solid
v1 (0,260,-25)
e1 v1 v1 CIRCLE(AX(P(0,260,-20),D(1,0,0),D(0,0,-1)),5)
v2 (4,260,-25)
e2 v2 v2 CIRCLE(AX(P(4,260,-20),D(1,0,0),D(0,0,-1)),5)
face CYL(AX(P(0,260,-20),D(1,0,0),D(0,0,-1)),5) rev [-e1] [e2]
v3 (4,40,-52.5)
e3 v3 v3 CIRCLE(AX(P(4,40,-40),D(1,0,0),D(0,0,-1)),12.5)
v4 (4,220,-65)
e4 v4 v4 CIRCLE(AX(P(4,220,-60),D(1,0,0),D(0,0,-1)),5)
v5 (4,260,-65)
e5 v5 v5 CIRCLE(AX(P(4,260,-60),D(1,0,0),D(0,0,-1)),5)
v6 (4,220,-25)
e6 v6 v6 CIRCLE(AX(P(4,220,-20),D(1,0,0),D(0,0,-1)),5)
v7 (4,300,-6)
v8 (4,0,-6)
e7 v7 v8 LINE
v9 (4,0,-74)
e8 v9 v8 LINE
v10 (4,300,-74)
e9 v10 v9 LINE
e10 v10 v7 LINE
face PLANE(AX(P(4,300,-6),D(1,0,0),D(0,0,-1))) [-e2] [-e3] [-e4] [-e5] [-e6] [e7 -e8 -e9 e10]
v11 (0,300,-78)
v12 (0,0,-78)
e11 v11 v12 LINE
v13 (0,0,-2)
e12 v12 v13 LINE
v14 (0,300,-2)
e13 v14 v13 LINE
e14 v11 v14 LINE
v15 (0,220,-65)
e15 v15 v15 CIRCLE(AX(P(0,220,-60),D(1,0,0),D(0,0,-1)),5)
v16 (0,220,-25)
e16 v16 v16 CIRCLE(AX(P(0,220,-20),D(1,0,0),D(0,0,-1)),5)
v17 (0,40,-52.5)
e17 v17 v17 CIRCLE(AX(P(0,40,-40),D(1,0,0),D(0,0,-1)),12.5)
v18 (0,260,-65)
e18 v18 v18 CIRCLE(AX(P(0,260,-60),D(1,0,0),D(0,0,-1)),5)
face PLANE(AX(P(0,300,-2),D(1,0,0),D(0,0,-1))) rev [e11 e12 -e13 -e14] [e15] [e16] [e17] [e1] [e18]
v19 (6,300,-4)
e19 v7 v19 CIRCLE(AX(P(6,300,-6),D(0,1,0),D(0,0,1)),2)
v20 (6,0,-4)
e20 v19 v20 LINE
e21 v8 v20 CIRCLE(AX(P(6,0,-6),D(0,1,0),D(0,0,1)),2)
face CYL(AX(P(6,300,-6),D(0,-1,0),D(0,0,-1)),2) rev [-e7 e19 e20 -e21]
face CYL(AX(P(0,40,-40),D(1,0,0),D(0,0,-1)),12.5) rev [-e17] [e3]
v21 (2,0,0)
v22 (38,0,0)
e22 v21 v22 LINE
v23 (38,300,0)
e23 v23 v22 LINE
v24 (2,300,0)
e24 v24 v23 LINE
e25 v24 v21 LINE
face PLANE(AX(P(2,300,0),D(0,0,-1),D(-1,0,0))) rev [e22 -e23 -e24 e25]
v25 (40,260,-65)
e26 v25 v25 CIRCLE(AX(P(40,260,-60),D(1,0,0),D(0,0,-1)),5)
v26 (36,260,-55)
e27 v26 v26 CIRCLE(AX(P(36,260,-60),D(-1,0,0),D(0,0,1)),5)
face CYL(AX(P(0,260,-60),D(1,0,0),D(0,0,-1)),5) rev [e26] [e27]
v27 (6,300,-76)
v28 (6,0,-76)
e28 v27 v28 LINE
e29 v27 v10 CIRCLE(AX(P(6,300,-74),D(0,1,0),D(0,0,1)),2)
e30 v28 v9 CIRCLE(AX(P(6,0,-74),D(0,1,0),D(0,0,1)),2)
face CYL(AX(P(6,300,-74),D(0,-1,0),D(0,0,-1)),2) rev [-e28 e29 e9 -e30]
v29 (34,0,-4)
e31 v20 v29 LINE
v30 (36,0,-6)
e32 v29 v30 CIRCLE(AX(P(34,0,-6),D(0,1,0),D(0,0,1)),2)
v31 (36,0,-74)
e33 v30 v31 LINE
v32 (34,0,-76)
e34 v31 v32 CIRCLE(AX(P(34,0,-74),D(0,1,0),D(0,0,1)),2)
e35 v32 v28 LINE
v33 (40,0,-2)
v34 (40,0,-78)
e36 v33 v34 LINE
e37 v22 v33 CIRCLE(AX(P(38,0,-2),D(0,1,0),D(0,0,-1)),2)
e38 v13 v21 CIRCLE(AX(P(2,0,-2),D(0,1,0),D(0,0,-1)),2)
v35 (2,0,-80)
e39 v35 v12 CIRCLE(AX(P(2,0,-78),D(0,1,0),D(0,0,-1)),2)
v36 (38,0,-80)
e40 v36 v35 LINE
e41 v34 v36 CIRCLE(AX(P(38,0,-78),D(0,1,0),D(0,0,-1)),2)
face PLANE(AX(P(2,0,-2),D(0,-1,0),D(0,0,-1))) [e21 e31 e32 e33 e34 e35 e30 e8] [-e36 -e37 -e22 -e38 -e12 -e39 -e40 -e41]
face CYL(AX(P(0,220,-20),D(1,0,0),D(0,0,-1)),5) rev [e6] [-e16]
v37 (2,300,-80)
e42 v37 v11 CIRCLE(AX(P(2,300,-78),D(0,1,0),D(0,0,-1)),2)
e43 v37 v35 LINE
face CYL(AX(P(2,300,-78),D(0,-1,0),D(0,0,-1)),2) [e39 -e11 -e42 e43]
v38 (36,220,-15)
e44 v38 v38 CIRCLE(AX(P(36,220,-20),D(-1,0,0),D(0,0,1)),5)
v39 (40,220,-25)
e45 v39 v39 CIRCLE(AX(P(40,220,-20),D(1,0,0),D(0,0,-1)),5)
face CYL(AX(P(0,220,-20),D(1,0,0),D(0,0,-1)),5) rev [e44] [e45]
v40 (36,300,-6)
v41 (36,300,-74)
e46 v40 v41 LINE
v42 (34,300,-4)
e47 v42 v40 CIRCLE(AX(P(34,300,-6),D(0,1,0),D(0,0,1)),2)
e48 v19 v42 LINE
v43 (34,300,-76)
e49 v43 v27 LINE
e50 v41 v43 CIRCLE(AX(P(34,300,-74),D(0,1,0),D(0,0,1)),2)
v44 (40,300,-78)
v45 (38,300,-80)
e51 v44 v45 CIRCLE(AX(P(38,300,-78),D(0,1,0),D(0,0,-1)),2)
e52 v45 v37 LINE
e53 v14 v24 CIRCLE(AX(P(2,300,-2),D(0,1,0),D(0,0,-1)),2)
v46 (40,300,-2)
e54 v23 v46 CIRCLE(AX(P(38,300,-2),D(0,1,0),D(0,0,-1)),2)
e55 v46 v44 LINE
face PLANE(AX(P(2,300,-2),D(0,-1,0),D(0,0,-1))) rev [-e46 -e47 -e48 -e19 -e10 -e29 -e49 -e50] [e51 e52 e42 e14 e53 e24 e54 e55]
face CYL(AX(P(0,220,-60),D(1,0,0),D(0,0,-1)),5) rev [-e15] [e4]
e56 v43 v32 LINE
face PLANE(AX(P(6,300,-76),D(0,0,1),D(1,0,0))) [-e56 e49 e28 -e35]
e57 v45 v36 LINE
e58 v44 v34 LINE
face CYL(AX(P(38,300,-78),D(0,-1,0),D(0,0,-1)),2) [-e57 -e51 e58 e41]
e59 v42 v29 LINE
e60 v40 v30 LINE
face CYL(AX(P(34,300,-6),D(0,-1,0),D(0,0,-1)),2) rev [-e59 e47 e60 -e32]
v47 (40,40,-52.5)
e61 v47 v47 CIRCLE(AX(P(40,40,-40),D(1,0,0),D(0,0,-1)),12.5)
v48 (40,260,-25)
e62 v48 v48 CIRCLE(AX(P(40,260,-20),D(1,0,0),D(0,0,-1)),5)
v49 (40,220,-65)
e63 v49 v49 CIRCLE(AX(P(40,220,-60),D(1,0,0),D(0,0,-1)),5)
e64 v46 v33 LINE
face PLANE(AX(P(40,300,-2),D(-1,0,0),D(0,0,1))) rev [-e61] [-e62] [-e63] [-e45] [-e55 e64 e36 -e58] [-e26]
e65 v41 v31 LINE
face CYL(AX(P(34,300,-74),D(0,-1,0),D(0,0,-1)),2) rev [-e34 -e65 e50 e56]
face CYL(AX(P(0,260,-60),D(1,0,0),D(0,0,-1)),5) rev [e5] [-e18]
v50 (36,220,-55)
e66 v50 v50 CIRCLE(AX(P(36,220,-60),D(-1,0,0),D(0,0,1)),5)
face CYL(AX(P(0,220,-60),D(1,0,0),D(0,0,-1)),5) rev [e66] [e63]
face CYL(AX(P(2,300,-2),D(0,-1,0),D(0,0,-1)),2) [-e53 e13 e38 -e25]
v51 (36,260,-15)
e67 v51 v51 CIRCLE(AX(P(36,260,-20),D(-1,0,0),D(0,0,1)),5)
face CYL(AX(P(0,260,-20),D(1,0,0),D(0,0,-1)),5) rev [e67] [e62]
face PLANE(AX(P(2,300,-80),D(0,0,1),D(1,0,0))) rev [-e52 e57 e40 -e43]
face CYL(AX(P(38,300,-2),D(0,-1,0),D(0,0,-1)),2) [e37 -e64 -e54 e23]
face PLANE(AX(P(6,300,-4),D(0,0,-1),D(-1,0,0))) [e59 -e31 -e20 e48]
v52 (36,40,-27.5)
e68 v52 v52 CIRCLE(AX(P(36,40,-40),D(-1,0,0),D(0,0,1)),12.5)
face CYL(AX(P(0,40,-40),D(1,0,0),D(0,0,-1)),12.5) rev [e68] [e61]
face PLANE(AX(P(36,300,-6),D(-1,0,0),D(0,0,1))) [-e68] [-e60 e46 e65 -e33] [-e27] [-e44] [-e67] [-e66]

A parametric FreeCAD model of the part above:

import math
import FreeCAD as App
import Part
import Sketcher
from FreeCAD import Vector

doc = App.newDocument("Part")
params = doc.addObject("Spreadsheet::Sheet", "Params")
for row, (alias, value) in enumerate([
    ("sketch1_radius", "2 mm"),
    ("sketch1_width", "36 mm"),
    ("sketch1_width2", "28 mm"),
    ("sketch1_height", "76 mm"),
    ("sketch1_height2", "68 mm"),
    ("pad1_length", "300 mm"),
    ("sketch2_diameter", "25 mm"),
    ("sketch3_diameter", "10 mm"),
], start=1):
    params.set(f"A{row}", alias)
    params.set(f"B{row}", "=" + value)
    params.setAlias(f"B{row}", alias)

body = doc.addObject("PartDesign::Body", "Body")

sketch1 = body.newObject("Sketcher::SketchObject", "Sketch")
sketch1.AttachmentSupport = (doc.getObject("XZ_Plane"), [""])
sketch1.MapMode = "FlatFace"
sketch1.addGeometry([
    Part.LineSegment(Vector(2, 0, 0), Vector(38, 0, 0)),
    Part.ArcOfCircle(Part.Circle(Vector(38, -2, 0), Vector(0, 0, 1), 2), math.radians(0), math.radians(90)),
    Part.LineSegment(Vector(40, -2, 0), Vector(40, -78, 0)),
    Part.ArcOfCircle(Part.Circle(Vector(38, -78, 0), Vector(0, 0, 1), 2), math.radians(-90), math.radians(0)),
    Part.LineSegment(Vector(38, -80, 0), Vector(2, -80, 0)),
    Part.ArcOfCircle(Part.Circle(Vector(2, -78, 0), Vector(0, 0, 1), 2), math.radians(-180), math.radians(-90)),
    Part.LineSegment(Vector(0, -78, 0), Vector(0, -2, 0)),
    Part.ArcOfCircle(Part.Circle(Vector(2, -2, 0), Vector(0, 0, 1), 2), math.radians(90), math.radians(180)),
    Part.LineSegment(Vector(34, -4, 0), Vector(6, -4, 0)),
    Part.ArcOfCircle(Part.Circle(Vector(6, -6, 0), Vector(0, 0, 1), 2), math.radians(90), math.radians(180)),
    Part.LineSegment(Vector(4, -6, 0), Vector(4, -74, 0)),
    Part.ArcOfCircle(Part.Circle(Vector(6, -74, 0), Vector(0, 0, 1), 2), math.radians(-180), math.radians(-90)),
    Part.LineSegment(Vector(6, -76, 0), Vector(34, -76, 0)),
    Part.ArcOfCircle(Part.Circle(Vector(34, -74, 0), Vector(0, 0, 1), 2), math.radians(-90), math.radians(0)),
    Part.LineSegment(Vector(36, -74, 0), Vector(36, -6, 0)),
    Part.ArcOfCircle(Part.Circle(Vector(34, -6, 0), Vector(0, 0, 1), 2), math.radians(0), math.radians(90)),
], False)
sketch1.addConstraint([
    Sketcher.Constraint("Tangent", 0, 2, 1, 2),
    Sketcher.Constraint("Tangent", 1, 1, 2, 1),
    Sketcher.Constraint("Tangent", 2, 2, 3, 2),
    Sketcher.Constraint("Tangent", 3, 1, 4, 1),
    Sketcher.Constraint("Tangent", 4, 2, 5, 2),
    Sketcher.Constraint("Tangent", 5, 1, 6, 1),
    Sketcher.Constraint("Tangent", 6, 2, 7, 2),
    Sketcher.Constraint("Tangent", 7, 1, 0, 1),
    Sketcher.Constraint("Tangent", 8, 2, 9, 1),
    Sketcher.Constraint("Tangent", 9, 2, 10, 1),
    Sketcher.Constraint("Tangent", 10, 2, 11, 1),
    Sketcher.Constraint("Tangent", 11, 2, 12, 1),
    Sketcher.Constraint("Tangent", 12, 2, 13, 1),
    Sketcher.Constraint("Tangent", 13, 2, 14, 1),
    Sketcher.Constraint("Tangent", 14, 2, 15, 1),
    Sketcher.Constraint("Tangent", 15, 2, 8, 1),
    Sketcher.Constraint("Horizontal", 0),
    Sketcher.Constraint("Vertical", 2),
    Sketcher.Constraint("Horizontal", 4),
    Sketcher.Constraint("Vertical", 6),
    Sketcher.Constraint("Horizontal", 8),
    Sketcher.Constraint("Vertical", 10),
    Sketcher.Constraint("Horizontal", 12),
    Sketcher.Constraint("Vertical", 14),
    Sketcher.Constraint("Equal", 1, 3),
    Sketcher.Constraint("Equal", 3, 5),
    Sketcher.Constraint("Equal", 5, 7),
    Sketcher.Constraint("Equal", 7, 9),
    Sketcher.Constraint("Equal", 9, 11),
    Sketcher.Constraint("Equal", 11, 13),
    Sketcher.Constraint("Equal", 13, 15),
    Sketcher.Constraint("PointOnObject", 0, 2, -1),
    Sketcher.Constraint("PointOnObject", 5, 1, -2),
    Sketcher.Constraint("Radius", 1, 2.0),
    Sketcher.Constraint("DistanceX", 0, 1, 0, 2, 36.0),
    Sketcher.Constraint("DistanceX", 8, 2, 8, 1, 28.0),
    Sketcher.Constraint("DistanceY", 2, 2, 2, 1, 76.0),
    Sketcher.Constraint("DistanceY", 10, 2, 10, 1, 68.0),
    Sketcher.Constraint("DistanceX", -1, 1, 9, 3, 6.0),
    Sketcher.Constraint("DistanceY", 9, 3, -1, 1, 6.0),
])
sketch1.setExpression("Constraints[33]", "Params.sketch1_radius")
sketch1.setExpression("Constraints[34]", "Params.sketch1_width")
sketch1.setExpression("Constraints[35]", "Params.sketch1_width2")
sketch1.setExpression("Constraints[36]", "Params.sketch1_height")
sketch1.setExpression("Constraints[37]", "Params.sketch1_height2")
pad1 = body.newObject("PartDesign::Pad", "Pad")
pad1.Profile = sketch1
pad1.setExpression("Length", "Params.pad1_length")
pad1.Reversed = True

sketch2 = body.newObject("Sketcher::SketchObject", "Sketch001")
sketch2.AttachmentSupport = (doc.getObject("YZ_Plane"), [""])
sketch2.MapMode = "FlatFace"
sketch2.AttachmentOffset = App.Placement(Vector(0, 0, 40), App.Rotation())
sketch2.addGeometry(Part.Circle(Vector(40, -40, 0), Vector(0, 0, 1), 12), False)
sketch2.addConstraint([
    Sketcher.Constraint("Diameter", 0, 25.0),
    Sketcher.Constraint("DistanceX", -1, 1, 0, 3, 40.0),
    Sketcher.Constraint("DistanceY", 0, 3, -1, 1, 40.0),
])
sketch2.setExpression("Constraints[0]", "Params.sketch2_diameter")
pocket1 = body.newObject("PartDesign::Pocket", "Pocket")
pocket1.Profile = sketch2
pocket1.Type = "ThroughAll"

sketch3 = body.newObject("Sketcher::SketchObject", "Sketch002")
sketch3.AttachmentSupport = (doc.getObject("YZ_Plane"), [""])
sketch3.MapMode = "FlatFace"
sketch3.AttachmentOffset = App.Placement(Vector(0, 0, 40), App.Rotation())
sketch3.addGeometry([
    Part.Circle(Vector(220, -60, 0), Vector(0, 0, 1), 5),
    Part.Circle(Vector(220, -20, 0), Vector(0, 0, 1), 5),
    Part.Circle(Vector(260, -20, 0), Vector(0, 0, 1), 5),
    Part.Circle(Vector(260, -60, 0), Vector(0, 0, 1), 5),
], False)
sketch3.addConstraint([
    Sketcher.Constraint("Equal", 0, 1),
    Sketcher.Constraint("Equal", 1, 2),
    Sketcher.Constraint("Equal", 2, 3),
    Sketcher.Constraint("Horizontal", 1, 3, 2, 3),
    Sketcher.Constraint("Horizontal", 0, 3, 3, 3),
    Sketcher.Constraint("Vertical", 0, 3, 1, 3),
    Sketcher.Constraint("Vertical", 2, 3, 3, 3),
    Sketcher.Constraint("Diameter", 0, 10.0),
    Sketcher.Constraint("DistanceX", -1, 1, 0, 3, 220.0),
    Sketcher.Constraint("DistanceY", 0, 3, -1, 1, 60.0),
    Sketcher.Constraint("DistanceY", 1, 3, -1, 1, 20.0),
    Sketcher.Constraint("DistanceX", -1, 1, 2, 3, 260.0),
])
sketch3.setExpression("Constraints[7]", "Params.sketch3_diameter")
pocket2 = body.newObject("PartDesign::Pocket", "Pocket001")
pocket2.Profile = sketch3
pocket2.Type = "ThroughAll"

doc.recompute()
